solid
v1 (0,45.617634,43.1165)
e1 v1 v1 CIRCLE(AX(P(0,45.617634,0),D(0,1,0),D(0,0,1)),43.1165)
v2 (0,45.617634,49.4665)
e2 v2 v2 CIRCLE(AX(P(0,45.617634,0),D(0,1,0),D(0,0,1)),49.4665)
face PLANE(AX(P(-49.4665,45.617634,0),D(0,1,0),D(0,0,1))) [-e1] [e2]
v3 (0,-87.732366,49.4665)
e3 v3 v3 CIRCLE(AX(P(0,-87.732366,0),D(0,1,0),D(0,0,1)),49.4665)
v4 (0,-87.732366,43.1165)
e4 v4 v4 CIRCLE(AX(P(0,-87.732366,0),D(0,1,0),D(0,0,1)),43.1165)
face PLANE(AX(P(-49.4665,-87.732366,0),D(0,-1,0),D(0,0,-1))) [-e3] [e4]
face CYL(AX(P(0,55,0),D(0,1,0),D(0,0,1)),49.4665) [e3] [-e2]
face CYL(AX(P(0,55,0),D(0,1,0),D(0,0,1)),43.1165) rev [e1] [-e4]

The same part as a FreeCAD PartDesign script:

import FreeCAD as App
import Part
import Sketcher

V = App.Vector
Q = App.Units.Quantity

doc = App.newDocument("Part")
body = doc.addObject("PartDesign::Body", "Body")

sketch1 = body.newObject("Sketcher::SketchObject", "Sketch")
sketch1.AttachmentSupport = (doc.getObject("XY_Plane"), [""])
sketch1.MapMode = "FlatFace"
sketch1.addGeometry([
    Part.LineSegment(V(-49, 46, 0), V(-49, -88, 0)),
    Part.LineSegment(V(-49, -88, 0), V(-43, -88, 0)),
    Part.LineSegment(V(-43, -88, 0), V(-43, 46, 0)),
    Part.LineSegment(V(-43, 46, 0), V(-49, 46, 0)),
], False)
sketch1.addConstraint([
    Sketcher.Constraint("Coincident", 0, 2, 1, 1),
    Sketcher.Constraint("Coincident", 1, 2, 2, 1),
    Sketcher.Constraint("Coincident", 2, 2, 3, 1),
    Sketcher.Constraint("Coincident", 3, 2, 0, 1),
    Sketcher.Constraint("Vertical", 0),
    Sketcher.Constraint("Horizontal", 1),
    Sketcher.Constraint("Vertical", 2),
    Sketcher.Constraint("Horizontal", 3),
    Sketcher.Constraint("DistanceX", 1, 1, 1, 2, Q("0.25 in")),
    Sketcher.Constraint("DistanceY", 0, 2, 0, 1, Q("5.25 in")),
    Sketcher.Constraint("DistanceX", 0, 2, -1, 1, Q("1.9475 in")),
    Sketcher.Constraint("DistanceY", 0, 2, -1, 1, 87.732366),
])
revolution = body.newObject("PartDesign::Revolution", "Revolution")
revolution.Profile = sketch1
revolution.ReferenceAxis = (sketch1, ["V_Axis"])
revolution.Angle = 360

doc.recompute()
